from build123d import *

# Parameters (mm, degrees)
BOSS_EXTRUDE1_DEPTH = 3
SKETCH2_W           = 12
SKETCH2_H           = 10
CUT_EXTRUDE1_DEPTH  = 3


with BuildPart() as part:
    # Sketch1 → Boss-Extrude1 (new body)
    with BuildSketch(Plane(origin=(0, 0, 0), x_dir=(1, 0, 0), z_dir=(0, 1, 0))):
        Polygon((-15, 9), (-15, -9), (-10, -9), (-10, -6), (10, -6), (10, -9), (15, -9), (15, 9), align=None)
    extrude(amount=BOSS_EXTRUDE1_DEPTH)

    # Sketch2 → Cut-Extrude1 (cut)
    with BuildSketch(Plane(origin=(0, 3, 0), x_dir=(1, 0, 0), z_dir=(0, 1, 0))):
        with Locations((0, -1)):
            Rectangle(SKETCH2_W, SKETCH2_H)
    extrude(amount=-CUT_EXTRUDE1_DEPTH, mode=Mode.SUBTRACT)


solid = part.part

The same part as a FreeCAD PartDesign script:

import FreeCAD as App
import Part
import Sketcher

V = App.Vector


def add_polygon(sketch, points):
    """Adds a closed chain of lines whose ends are joined by coincident constraints."""
    first, n = sketch.GeometryCount, len(points)
    for a, b in zip(points, points[1:] + points[:1]):
        sketch.addGeometry(Part.LineSegment(App.Vector(*a, 0), App.Vector(*b, 0)), False)
    for i in range(n):
        sketch.addConstraint(Sketcher.Constraint("Coincident", first + i, 2, first + (i + 1) % n, 1))

doc = App.newDocument("Part")
body = doc.addObject("PartDesign::Body", "Body")

sketch1 = doc.addObject("Sketcher::SketchObject", "Sketch")
body.addObject(sketch1)
sketch1.AttachmentSupport = (doc.XZ_Plane, [""])
sketch1.MapMode = "FlatFace"
add_polygon(sketch1, [(-15, -9), (-15, 9), (-10, 9), (-10, 6), (10, 6), (10, 9), (15, 9), (15, -9)])
sketch1.addConstraint([
    Sketcher.Constraint("Vertical", 0),
    Sketcher.Constraint("Horizontal", 1),
    Sketcher.Constraint("Vertical", 2),
    Sketcher.Constraint("Horizontal", 3),
    Sketcher.Constraint("Vertical", 4),
    Sketcher.Constraint("Horizontal", 5),
    Sketcher.Constraint("Vertical", 6),
    Sketcher.Constraint("Horizontal", 7),
    Sketcher.Constraint("Symmetric", 0, 2, 6, 2, -1, 1),
    Sketcher.Constraint("Symmetric", 1, 2, 4, 2, -2),
    Sketcher.Constraint("DistanceX", 1, 1, 1, 2, 5.0),
    Sketcher.Constraint("DistanceX", 3, 1, 3, 2, 20.0),
    Sketcher.Constraint("DistanceY", 0, 1, 0, 2, 18.0),
    Sketcher.Constraint("DistanceY", 2, 2, 2, 1, 3.0),
])
pad1 = doc.addObject("PartDesign::Pad", "Pad")
body.addObject(pad1)
pad1.Profile = sketch1
pad1.Length = 3
pad1.Reversed = True

sketch2 = doc.addObject("Sketcher::SketchObject", "Sketch001")
body.addObject(sketch2)
sketch2.AttachmentSupport = (doc.XZ_Plane, [""])
sketch2.MapMode = "FlatFace"
sketch2.AttachmentOffset = App.Placement(V(0, 0, -3), App.Rotation())
add_polygon(sketch2, [(-6, -4), (-6, 6), (6, 6), (6, -4)])
sketch2.addConstraint([
    Sketcher.Constraint("Vertical", 0),
    Sketcher.Constraint("Horizontal", 1),
    Sketcher.Constraint("Vertical", 2),
    Sketcher.Constraint("Horizontal", 3),
    Sketcher.Constraint("DistanceX", 1, 1, 1, 2, 12.0),
    Sketcher.Constraint("DistanceY", 0, 1, 0, 2, 10.0),
    Sketcher.Constraint("DistanceX", 0, 2, -1, 1, 6.0),
    Sketcher.Constraint("DistanceY", -1, 1, 0, 2, 6.0),
])
pocket1 = doc.addObject("PartDesign::Pocket", "Pocket")
body.addObject(pocket1)
pocket1.Profile = sketch2
pocket1.Length = 3
pocket1.Reversed = True

doc.recompute()
